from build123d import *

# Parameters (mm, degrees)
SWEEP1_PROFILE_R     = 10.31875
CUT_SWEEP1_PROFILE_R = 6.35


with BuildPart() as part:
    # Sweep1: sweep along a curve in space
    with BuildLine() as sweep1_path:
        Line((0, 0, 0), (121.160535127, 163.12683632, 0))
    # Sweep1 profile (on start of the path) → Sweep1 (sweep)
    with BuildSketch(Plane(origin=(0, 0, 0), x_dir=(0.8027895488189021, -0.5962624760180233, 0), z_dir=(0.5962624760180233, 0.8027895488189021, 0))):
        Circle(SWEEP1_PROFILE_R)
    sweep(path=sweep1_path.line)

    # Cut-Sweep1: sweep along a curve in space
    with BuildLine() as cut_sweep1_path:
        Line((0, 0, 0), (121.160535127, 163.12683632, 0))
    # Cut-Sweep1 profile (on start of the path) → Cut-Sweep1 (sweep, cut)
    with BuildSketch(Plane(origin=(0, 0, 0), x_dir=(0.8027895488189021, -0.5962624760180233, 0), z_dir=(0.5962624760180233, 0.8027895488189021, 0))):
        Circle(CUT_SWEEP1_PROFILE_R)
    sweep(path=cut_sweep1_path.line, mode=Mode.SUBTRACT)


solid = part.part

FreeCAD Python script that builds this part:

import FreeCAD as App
import Part
import Sketcher

V = App.Vector
Q = App.Units.Quantity

doc = App.newDocument("Part")
body = doc.addObject("PartDesign::Body", "Body")

sketch1 = doc.addObject("Sketcher::SketchObject", "Sketch")
body.addObject(sketch1)
sketch1.Placement = App.Placement(V(0, 0, 0), App.Rotation(V(0.802789549, -0.596262476, 0), V(0, 0, -1), V(0.596262476, 0.802789549, 0), "ZXY"))
sketch1.addGeometry(Part.Circle(V(0, 0, 0), V(0, 0, 1), 10), False)
sketch1.addConstraint([
    Sketcher.Constraint("Coincident", 0, 3, -1, 1),
    Sketcher.Constraint("Diameter", 0, Q("0.8125 in")),
])

sketch2 = doc.addObject("Sketcher::SketchObject", "Sketch001")
body.addObject(sketch2)
sketch2.Placement = App.Placement(V(0, 0, 0), App.Rotation(V(0.596262476, 0.802789549, 0), V(0, 0, 1), V(0.802789549, -0.596262476, 0), "ZXY"))
sketch2.addGeometry(Part.LineSegment(V(0, 0, 0), V(203, 0, 0)), False)
sketch2.addConstraint([
    Sketcher.Constraint("Horizontal", 0),
    Sketcher.Constraint("Coincident", 0, 1, -1, 1),
    Sketcher.Constraint("DistanceX", 0, 1, 0, 2, Q("8 in")),
])
doc.recompute()

additivepipe = doc.addObject("PartDesign::AdditivePipe", "AdditivePipe")
body.addObject(additivepipe)
additivepipe.Profile = sketch1
additivepipe.Spine = (sketch2, ["Edge1"])

sketch3 = doc.addObject("Sketcher::SketchObject", "Sketch002")
body.addObject(sketch3)
sketch3.Placement = App.Placement(V(0, 0, 0), App.Rotation(V(0.802789549, -0.596262476, 0), V(0, 0, -1), V(0.596262476, 0.802789549, 0), "ZXY"))
sketch3.addGeometry(Part.Circle(V(0, 0, 0), V(0, 0, 1), 6), False)
sketch3.addConstraint([
    Sketcher.Constraint("Coincident", 0, 3, -1, 1),
    Sketcher.Constraint("Diameter", 0, Q("0.5 in")),
])

sketch4 = doc.addObject("Sketcher::SketchObject", "Sketch003")
body.addObject(sketch4)
sketch4.Placement = App.Placement(V(0, 0, 0), App.Rotation(V(0.596262476, 0.802789549, 0), V(0, 0, 1), V(0.802789549, -0.596262476, 0), "ZXY"))
sketch4.addGeometry(Part.LineSegment(V(0, 0, 0), V(203, 0, 0)), False)
sketch4.addConstraint([
    Sketcher.Constraint("Horizontal", 0),
    Sketcher.Constraint("Coincident", 0, 1, -1, 1),
    Sketcher.Constraint("DistanceX", 0, 1, 0, 2, Q("8 in")),
])
doc.recompute()

subtractivepipe = doc.addObject("PartDesign::SubtractivePipe", "SubtractivePipe")
body.addObject(subtractivepipe)
subtractivepipe.Profile = sketch3
subtractivepipe.Spine = (sketch4, ["Edge1"])

doc.recompute()
